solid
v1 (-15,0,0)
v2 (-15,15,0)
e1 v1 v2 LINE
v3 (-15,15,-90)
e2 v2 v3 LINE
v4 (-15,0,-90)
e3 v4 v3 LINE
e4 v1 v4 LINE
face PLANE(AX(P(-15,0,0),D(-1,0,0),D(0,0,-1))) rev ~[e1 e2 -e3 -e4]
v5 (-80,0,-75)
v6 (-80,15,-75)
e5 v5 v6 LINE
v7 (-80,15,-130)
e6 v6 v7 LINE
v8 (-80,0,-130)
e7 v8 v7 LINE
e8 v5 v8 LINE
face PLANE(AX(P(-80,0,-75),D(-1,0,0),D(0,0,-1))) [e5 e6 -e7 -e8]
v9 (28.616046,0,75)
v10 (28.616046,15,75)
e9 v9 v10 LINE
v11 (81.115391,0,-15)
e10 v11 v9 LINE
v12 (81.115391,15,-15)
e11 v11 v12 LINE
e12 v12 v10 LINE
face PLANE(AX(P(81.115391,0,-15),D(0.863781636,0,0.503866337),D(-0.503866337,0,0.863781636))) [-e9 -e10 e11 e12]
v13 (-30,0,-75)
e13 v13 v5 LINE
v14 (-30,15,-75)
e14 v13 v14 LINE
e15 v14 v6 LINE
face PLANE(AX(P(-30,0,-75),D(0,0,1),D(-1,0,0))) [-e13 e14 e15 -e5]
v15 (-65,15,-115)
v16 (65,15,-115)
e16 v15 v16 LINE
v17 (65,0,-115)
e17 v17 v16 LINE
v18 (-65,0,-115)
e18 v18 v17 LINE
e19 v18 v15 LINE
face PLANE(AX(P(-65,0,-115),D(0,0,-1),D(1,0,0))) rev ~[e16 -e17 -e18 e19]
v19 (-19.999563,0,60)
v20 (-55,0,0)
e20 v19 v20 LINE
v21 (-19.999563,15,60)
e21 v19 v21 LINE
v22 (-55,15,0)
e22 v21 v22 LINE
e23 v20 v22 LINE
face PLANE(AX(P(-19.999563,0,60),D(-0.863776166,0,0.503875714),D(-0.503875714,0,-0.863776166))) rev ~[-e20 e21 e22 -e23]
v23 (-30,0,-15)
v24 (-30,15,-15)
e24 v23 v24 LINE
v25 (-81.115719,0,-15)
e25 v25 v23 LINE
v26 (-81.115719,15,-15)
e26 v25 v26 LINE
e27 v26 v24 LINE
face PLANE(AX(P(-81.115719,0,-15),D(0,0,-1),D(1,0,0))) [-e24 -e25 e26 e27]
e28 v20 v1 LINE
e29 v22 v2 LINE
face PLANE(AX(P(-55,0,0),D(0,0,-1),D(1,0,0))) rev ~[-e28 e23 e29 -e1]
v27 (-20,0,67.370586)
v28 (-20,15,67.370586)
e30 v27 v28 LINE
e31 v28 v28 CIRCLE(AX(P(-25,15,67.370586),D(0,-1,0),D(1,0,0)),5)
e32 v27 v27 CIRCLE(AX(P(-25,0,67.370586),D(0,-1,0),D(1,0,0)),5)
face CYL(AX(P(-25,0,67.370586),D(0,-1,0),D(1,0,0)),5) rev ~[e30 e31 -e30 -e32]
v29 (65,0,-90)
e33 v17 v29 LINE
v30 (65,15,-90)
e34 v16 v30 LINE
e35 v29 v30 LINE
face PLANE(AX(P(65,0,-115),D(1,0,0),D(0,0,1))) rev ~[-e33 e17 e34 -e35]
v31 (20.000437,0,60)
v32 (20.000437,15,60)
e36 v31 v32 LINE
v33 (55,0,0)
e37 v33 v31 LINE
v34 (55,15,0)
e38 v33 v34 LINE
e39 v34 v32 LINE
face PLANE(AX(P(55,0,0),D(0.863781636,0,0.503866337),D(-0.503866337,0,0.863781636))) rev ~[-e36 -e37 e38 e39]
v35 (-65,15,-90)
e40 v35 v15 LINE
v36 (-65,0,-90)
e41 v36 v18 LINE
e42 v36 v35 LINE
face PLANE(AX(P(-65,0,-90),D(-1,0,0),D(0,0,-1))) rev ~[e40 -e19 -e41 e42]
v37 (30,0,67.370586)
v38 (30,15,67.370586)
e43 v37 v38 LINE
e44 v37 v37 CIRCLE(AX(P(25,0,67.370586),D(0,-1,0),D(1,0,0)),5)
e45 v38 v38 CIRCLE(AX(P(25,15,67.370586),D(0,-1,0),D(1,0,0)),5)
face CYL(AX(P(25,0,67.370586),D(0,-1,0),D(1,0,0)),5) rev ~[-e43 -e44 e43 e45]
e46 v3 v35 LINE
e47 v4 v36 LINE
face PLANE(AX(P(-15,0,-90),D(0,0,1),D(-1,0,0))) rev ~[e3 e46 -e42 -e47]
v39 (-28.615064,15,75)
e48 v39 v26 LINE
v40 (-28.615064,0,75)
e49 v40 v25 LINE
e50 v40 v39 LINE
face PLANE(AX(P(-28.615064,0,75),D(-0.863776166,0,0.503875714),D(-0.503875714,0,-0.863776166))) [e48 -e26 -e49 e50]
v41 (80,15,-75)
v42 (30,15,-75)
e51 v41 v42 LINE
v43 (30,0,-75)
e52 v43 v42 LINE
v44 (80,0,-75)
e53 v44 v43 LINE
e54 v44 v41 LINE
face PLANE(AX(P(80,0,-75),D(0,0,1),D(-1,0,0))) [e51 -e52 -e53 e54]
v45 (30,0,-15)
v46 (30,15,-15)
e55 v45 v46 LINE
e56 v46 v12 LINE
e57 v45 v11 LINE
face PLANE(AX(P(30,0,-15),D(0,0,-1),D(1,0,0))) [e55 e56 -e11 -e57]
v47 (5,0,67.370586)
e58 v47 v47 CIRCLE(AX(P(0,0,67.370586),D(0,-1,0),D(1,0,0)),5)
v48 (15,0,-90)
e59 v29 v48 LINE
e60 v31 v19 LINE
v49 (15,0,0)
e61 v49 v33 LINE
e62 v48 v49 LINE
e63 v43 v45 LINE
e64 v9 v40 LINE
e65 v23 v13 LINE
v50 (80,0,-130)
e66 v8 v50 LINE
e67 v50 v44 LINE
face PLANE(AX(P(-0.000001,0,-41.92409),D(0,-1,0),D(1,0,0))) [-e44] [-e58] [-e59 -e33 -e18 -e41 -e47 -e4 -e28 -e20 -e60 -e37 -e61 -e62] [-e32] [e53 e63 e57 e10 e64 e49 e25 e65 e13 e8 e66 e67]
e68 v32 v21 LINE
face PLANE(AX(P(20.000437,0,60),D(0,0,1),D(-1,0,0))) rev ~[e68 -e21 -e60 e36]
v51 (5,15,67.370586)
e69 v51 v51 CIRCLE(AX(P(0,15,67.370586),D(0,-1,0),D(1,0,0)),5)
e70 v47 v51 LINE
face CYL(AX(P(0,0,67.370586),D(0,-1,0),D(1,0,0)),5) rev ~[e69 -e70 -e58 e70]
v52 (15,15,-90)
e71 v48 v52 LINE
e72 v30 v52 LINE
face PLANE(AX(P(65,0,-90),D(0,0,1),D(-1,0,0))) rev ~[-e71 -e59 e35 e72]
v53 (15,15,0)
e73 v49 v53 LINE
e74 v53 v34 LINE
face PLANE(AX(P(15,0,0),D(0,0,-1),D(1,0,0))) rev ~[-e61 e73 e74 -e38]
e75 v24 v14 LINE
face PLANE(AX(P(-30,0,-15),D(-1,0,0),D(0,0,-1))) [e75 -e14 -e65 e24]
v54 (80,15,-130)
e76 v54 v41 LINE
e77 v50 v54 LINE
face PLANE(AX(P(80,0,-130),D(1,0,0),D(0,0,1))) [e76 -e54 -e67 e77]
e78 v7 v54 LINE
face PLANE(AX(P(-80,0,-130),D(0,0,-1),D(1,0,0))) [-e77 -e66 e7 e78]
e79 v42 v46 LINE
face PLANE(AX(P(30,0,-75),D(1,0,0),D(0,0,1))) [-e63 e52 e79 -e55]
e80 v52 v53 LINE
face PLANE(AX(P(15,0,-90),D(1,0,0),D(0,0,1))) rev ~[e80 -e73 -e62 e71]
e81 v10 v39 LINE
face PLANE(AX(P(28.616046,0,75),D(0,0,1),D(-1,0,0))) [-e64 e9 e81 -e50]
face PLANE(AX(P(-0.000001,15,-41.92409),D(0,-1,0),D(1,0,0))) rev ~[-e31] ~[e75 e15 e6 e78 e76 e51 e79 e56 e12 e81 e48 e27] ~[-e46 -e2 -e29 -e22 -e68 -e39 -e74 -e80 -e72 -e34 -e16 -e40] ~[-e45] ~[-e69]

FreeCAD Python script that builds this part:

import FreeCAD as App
import Part
import Sketcher


def add_polygon(sketch, points):
    """Adds a closed chain of lines whose ends are joined by coincident constraints."""
    first, n = sketch.GeometryCount, len(points)
    for a, b in zip(points, points[1:] + points[:1]):
        sketch.addGeometry(Part.LineSegment(App.Vector(*a, 0), App.Vector(*b, 0)), False)
    for i in range(n):
        sketch.addConstraint(Sketcher.Constraint("Coincident", first + i, 2, first + (i + 1) % n, 1))

doc = App.newDocument("Part")
body = doc.addObject("PartDesign::Body", "Body")

sketch1 = body.newObject("Sketcher::SketchObject", "Sketch")
sketch1.AttachmentSupport = (doc.getObject("XZ_Plane"), [""])
sketch1.MapMode = "FlatFace"
add_polygon(sketch1, [(-30, -75), (-80, -75), (-80, -130), (80, -130), (80, -75), (30, -75), (30, -15), (81, -15), (29, 75), (-29, 75), (-81, -15), (-30, -15)])
sketch1.addGeometry(Part.Circle(App.Vector(-25, 67, 0), App.Vector(0, 0, 1), 5), False)
sketch1.addGeometry(Part.Circle(App.Vector(0, 67, 0), App.Vector(0, 0, 1), 5), False)
sketch1.addGeometry(Part.Circle(App.Vector(25, 67, 0), App.Vector(0, 0, 1), 5), False)
sketch1.addConstraint(Sketcher.Constraint("Horizontal", 0))
sketch1.addConstraint(Sketcher.Constraint("Vertical", 1))
sketch1.addConstraint(Sketcher.Constraint("Horizontal", 2))
sketch1.addConstraint(Sketcher.Constraint("Vertical", 3))
sketch1.addConstraint(Sketcher.Constraint("Horizontal", 4))
sketch1.addConstraint(Sketcher.Constraint("Vertical", 5))
sketch1.addConstraint(Sketcher.Constraint("Horizontal", 6))
sketch1.addConstraint(Sketcher.Constraint("Horizontal", 8))
sketch1.addConstraint(Sketcher.Constraint("Horizontal", 10))
sketch1.addConstraint(Sketcher.Constraint("Vertical", 11))
sketch1.addConstraint(Sketcher.Constraint("Equal", 12, 13))
sketch1.addConstraint(Sketcher.Constraint("Equal", 13, 14))
sketch1.addConstraint(Sketcher.Constraint("Symmetric", 12, 3, 14, 3, -2))
sketch1.addConstraint(Sketcher.Constraint("Symmetric", 0, 2, 3, 2, -2))
sketch1.addConstraint(Sketcher.Constraint("Symmetric", 5, 2, 10, 2, -2))
sketch1.addConstraint(Sketcher.Constraint("PointOnObject", 13, 3, -2))
sketch1.addConstraint(Sketcher.Constraint("Horizontal", 12, 3, 13, 3))
sketch1.addConstraint(Sketcher.Constraint("Diameter", 12, 10.0))
sketch1.addConstraint(Sketcher.Constraint("DistanceX", 0, 2, 0, 1, 50.0))
sketch1.addConstraint(Sketcher.Constraint("DistanceX", 2, 1, 2, 2, 160.0))
sketch1.addConstraint(Sketcher.Constraint("DistanceY", 1, 2, 1, 1, 55.0))
sketch1.addConstraint(Sketcher.Constraint("DistanceY", 5, 1, 5, 2, 60.0))
sketch1.addConstraint(Sketcher.Constraint("DistanceX", 12, 3, -1, 1, 25.0))
sketch1.addConstraint(Sketcher.Constraint("DistanceY", 0, 2, -1, 1, 75.0))
sketch1.addConstraint(Sketcher.Constraint("DistanceY", -1, 1, 7, 2, 75.0))
sketch1.addConstraint(Sketcher.Constraint("Distance", 7, 104.193))
sketch1.addConstraint(Sketcher.Constraint("DistanceX", 6, 1, 6, 2, 51.115391))
sketch1.addConstraint(Sketcher.Constraint("DistanceX", 8, 2, 8, 1, 57.23111))
sketch1.addConstraint(Sketcher.Constraint("DistanceX", 10, 1, 10, 2, 51.115719))
sketch1.addConstraint(Sketcher.Constraint("DistanceY", -1, 1, 12, 3, 67.370586))
pad1 = body.newObject("PartDesign::Pad", "Pad")
pad1.Profile = sketch1
pad1.Length = 15
pad1.Reversed = True

sketch2 = body.newObject("Sketcher::SketchObject", "Sketch001")
sketch2.AttachmentSupport = (doc.getObject("XZ_Plane"), [""])
sketch2.MapMode = "FlatFace"
add_polygon(sketch2, [(20, 60), (-20, 60), (-55, 0), (-15, 0), (-15, -90), (-65, -90), (-65, -115), (65, -115), (65, -90), (15, -90), (15, 0), (55, 0)])
sketch2.addConstraint(Sketcher.Constraint("Horizontal", 0))
sketch2.addConstraint(Sketcher.Constraint("Horizontal", 2))
sketch2.addConstraint(Sketcher.Constraint("Vertical", 3))
sketch2.addConstraint(Sketcher.Constraint("Horizontal", 4))
sketch2.addConstraint(Sketcher.Constraint("Vertical", 5))
sketch2.addConstraint(Sketcher.Constraint("Horizontal", 6))
sketch2.addConstraint(Sketcher.Constraint("Vertical", 7))
sketch2.addConstraint(Sketcher.Constraint("Horizontal", 8))
sketch2.addConstraint(Sketcher.Constraint("Vertical", 9))
sketch2.addConstraint(Sketcher.Constraint("Horizontal", 10))
sketch2.addConstraint(Sketcher.Constraint("Symmetric", 2, 2, 9, 2, -1, 1))
sketch2.addConstraint(Sketcher.Constraint("Symmetric", 4, 2, 7, 2, -2))
sketch2.addConstraint(Sketcher.Constraint("Symmetric", 1, 2, 10, 2, -2))
sketch2.addConstraint(Sketcher.Constraint("Equal", 0, 2))
sketch2.addConstraint(Sketcher.Constraint("DistanceX", 0, 2, 0, 1, 40.0))
sketch2.addConstraint(Sketcher.Constraint("DistanceX", 4, 2, 4, 1, 50.0))
sketch2.addConstraint(Sketcher.Constraint("DistanceX", 6, 1, 6, 2, 130.0))
sketch2.addConstraint(Sketcher.Constraint("DistanceY", 3, 2, 3, 1, 90.0))
sketch2.addConstraint(Sketcher.Constraint("DistanceY", 5, 2, 5, 1, 25.0))
sketch2.addConstraint(Sketcher.Constraint("DistanceY", -1, 1, 0, 2, 60.0))
sketch2.addConstraint(Sketcher.Constraint("Distance", 11, 69.462))
pocket1 = body.newObject("PartDesign::Pocket", "Pocket")
pocket1.Profile = sketch2
pocket1.Type = "ThroughAll"

doc.recompute()
